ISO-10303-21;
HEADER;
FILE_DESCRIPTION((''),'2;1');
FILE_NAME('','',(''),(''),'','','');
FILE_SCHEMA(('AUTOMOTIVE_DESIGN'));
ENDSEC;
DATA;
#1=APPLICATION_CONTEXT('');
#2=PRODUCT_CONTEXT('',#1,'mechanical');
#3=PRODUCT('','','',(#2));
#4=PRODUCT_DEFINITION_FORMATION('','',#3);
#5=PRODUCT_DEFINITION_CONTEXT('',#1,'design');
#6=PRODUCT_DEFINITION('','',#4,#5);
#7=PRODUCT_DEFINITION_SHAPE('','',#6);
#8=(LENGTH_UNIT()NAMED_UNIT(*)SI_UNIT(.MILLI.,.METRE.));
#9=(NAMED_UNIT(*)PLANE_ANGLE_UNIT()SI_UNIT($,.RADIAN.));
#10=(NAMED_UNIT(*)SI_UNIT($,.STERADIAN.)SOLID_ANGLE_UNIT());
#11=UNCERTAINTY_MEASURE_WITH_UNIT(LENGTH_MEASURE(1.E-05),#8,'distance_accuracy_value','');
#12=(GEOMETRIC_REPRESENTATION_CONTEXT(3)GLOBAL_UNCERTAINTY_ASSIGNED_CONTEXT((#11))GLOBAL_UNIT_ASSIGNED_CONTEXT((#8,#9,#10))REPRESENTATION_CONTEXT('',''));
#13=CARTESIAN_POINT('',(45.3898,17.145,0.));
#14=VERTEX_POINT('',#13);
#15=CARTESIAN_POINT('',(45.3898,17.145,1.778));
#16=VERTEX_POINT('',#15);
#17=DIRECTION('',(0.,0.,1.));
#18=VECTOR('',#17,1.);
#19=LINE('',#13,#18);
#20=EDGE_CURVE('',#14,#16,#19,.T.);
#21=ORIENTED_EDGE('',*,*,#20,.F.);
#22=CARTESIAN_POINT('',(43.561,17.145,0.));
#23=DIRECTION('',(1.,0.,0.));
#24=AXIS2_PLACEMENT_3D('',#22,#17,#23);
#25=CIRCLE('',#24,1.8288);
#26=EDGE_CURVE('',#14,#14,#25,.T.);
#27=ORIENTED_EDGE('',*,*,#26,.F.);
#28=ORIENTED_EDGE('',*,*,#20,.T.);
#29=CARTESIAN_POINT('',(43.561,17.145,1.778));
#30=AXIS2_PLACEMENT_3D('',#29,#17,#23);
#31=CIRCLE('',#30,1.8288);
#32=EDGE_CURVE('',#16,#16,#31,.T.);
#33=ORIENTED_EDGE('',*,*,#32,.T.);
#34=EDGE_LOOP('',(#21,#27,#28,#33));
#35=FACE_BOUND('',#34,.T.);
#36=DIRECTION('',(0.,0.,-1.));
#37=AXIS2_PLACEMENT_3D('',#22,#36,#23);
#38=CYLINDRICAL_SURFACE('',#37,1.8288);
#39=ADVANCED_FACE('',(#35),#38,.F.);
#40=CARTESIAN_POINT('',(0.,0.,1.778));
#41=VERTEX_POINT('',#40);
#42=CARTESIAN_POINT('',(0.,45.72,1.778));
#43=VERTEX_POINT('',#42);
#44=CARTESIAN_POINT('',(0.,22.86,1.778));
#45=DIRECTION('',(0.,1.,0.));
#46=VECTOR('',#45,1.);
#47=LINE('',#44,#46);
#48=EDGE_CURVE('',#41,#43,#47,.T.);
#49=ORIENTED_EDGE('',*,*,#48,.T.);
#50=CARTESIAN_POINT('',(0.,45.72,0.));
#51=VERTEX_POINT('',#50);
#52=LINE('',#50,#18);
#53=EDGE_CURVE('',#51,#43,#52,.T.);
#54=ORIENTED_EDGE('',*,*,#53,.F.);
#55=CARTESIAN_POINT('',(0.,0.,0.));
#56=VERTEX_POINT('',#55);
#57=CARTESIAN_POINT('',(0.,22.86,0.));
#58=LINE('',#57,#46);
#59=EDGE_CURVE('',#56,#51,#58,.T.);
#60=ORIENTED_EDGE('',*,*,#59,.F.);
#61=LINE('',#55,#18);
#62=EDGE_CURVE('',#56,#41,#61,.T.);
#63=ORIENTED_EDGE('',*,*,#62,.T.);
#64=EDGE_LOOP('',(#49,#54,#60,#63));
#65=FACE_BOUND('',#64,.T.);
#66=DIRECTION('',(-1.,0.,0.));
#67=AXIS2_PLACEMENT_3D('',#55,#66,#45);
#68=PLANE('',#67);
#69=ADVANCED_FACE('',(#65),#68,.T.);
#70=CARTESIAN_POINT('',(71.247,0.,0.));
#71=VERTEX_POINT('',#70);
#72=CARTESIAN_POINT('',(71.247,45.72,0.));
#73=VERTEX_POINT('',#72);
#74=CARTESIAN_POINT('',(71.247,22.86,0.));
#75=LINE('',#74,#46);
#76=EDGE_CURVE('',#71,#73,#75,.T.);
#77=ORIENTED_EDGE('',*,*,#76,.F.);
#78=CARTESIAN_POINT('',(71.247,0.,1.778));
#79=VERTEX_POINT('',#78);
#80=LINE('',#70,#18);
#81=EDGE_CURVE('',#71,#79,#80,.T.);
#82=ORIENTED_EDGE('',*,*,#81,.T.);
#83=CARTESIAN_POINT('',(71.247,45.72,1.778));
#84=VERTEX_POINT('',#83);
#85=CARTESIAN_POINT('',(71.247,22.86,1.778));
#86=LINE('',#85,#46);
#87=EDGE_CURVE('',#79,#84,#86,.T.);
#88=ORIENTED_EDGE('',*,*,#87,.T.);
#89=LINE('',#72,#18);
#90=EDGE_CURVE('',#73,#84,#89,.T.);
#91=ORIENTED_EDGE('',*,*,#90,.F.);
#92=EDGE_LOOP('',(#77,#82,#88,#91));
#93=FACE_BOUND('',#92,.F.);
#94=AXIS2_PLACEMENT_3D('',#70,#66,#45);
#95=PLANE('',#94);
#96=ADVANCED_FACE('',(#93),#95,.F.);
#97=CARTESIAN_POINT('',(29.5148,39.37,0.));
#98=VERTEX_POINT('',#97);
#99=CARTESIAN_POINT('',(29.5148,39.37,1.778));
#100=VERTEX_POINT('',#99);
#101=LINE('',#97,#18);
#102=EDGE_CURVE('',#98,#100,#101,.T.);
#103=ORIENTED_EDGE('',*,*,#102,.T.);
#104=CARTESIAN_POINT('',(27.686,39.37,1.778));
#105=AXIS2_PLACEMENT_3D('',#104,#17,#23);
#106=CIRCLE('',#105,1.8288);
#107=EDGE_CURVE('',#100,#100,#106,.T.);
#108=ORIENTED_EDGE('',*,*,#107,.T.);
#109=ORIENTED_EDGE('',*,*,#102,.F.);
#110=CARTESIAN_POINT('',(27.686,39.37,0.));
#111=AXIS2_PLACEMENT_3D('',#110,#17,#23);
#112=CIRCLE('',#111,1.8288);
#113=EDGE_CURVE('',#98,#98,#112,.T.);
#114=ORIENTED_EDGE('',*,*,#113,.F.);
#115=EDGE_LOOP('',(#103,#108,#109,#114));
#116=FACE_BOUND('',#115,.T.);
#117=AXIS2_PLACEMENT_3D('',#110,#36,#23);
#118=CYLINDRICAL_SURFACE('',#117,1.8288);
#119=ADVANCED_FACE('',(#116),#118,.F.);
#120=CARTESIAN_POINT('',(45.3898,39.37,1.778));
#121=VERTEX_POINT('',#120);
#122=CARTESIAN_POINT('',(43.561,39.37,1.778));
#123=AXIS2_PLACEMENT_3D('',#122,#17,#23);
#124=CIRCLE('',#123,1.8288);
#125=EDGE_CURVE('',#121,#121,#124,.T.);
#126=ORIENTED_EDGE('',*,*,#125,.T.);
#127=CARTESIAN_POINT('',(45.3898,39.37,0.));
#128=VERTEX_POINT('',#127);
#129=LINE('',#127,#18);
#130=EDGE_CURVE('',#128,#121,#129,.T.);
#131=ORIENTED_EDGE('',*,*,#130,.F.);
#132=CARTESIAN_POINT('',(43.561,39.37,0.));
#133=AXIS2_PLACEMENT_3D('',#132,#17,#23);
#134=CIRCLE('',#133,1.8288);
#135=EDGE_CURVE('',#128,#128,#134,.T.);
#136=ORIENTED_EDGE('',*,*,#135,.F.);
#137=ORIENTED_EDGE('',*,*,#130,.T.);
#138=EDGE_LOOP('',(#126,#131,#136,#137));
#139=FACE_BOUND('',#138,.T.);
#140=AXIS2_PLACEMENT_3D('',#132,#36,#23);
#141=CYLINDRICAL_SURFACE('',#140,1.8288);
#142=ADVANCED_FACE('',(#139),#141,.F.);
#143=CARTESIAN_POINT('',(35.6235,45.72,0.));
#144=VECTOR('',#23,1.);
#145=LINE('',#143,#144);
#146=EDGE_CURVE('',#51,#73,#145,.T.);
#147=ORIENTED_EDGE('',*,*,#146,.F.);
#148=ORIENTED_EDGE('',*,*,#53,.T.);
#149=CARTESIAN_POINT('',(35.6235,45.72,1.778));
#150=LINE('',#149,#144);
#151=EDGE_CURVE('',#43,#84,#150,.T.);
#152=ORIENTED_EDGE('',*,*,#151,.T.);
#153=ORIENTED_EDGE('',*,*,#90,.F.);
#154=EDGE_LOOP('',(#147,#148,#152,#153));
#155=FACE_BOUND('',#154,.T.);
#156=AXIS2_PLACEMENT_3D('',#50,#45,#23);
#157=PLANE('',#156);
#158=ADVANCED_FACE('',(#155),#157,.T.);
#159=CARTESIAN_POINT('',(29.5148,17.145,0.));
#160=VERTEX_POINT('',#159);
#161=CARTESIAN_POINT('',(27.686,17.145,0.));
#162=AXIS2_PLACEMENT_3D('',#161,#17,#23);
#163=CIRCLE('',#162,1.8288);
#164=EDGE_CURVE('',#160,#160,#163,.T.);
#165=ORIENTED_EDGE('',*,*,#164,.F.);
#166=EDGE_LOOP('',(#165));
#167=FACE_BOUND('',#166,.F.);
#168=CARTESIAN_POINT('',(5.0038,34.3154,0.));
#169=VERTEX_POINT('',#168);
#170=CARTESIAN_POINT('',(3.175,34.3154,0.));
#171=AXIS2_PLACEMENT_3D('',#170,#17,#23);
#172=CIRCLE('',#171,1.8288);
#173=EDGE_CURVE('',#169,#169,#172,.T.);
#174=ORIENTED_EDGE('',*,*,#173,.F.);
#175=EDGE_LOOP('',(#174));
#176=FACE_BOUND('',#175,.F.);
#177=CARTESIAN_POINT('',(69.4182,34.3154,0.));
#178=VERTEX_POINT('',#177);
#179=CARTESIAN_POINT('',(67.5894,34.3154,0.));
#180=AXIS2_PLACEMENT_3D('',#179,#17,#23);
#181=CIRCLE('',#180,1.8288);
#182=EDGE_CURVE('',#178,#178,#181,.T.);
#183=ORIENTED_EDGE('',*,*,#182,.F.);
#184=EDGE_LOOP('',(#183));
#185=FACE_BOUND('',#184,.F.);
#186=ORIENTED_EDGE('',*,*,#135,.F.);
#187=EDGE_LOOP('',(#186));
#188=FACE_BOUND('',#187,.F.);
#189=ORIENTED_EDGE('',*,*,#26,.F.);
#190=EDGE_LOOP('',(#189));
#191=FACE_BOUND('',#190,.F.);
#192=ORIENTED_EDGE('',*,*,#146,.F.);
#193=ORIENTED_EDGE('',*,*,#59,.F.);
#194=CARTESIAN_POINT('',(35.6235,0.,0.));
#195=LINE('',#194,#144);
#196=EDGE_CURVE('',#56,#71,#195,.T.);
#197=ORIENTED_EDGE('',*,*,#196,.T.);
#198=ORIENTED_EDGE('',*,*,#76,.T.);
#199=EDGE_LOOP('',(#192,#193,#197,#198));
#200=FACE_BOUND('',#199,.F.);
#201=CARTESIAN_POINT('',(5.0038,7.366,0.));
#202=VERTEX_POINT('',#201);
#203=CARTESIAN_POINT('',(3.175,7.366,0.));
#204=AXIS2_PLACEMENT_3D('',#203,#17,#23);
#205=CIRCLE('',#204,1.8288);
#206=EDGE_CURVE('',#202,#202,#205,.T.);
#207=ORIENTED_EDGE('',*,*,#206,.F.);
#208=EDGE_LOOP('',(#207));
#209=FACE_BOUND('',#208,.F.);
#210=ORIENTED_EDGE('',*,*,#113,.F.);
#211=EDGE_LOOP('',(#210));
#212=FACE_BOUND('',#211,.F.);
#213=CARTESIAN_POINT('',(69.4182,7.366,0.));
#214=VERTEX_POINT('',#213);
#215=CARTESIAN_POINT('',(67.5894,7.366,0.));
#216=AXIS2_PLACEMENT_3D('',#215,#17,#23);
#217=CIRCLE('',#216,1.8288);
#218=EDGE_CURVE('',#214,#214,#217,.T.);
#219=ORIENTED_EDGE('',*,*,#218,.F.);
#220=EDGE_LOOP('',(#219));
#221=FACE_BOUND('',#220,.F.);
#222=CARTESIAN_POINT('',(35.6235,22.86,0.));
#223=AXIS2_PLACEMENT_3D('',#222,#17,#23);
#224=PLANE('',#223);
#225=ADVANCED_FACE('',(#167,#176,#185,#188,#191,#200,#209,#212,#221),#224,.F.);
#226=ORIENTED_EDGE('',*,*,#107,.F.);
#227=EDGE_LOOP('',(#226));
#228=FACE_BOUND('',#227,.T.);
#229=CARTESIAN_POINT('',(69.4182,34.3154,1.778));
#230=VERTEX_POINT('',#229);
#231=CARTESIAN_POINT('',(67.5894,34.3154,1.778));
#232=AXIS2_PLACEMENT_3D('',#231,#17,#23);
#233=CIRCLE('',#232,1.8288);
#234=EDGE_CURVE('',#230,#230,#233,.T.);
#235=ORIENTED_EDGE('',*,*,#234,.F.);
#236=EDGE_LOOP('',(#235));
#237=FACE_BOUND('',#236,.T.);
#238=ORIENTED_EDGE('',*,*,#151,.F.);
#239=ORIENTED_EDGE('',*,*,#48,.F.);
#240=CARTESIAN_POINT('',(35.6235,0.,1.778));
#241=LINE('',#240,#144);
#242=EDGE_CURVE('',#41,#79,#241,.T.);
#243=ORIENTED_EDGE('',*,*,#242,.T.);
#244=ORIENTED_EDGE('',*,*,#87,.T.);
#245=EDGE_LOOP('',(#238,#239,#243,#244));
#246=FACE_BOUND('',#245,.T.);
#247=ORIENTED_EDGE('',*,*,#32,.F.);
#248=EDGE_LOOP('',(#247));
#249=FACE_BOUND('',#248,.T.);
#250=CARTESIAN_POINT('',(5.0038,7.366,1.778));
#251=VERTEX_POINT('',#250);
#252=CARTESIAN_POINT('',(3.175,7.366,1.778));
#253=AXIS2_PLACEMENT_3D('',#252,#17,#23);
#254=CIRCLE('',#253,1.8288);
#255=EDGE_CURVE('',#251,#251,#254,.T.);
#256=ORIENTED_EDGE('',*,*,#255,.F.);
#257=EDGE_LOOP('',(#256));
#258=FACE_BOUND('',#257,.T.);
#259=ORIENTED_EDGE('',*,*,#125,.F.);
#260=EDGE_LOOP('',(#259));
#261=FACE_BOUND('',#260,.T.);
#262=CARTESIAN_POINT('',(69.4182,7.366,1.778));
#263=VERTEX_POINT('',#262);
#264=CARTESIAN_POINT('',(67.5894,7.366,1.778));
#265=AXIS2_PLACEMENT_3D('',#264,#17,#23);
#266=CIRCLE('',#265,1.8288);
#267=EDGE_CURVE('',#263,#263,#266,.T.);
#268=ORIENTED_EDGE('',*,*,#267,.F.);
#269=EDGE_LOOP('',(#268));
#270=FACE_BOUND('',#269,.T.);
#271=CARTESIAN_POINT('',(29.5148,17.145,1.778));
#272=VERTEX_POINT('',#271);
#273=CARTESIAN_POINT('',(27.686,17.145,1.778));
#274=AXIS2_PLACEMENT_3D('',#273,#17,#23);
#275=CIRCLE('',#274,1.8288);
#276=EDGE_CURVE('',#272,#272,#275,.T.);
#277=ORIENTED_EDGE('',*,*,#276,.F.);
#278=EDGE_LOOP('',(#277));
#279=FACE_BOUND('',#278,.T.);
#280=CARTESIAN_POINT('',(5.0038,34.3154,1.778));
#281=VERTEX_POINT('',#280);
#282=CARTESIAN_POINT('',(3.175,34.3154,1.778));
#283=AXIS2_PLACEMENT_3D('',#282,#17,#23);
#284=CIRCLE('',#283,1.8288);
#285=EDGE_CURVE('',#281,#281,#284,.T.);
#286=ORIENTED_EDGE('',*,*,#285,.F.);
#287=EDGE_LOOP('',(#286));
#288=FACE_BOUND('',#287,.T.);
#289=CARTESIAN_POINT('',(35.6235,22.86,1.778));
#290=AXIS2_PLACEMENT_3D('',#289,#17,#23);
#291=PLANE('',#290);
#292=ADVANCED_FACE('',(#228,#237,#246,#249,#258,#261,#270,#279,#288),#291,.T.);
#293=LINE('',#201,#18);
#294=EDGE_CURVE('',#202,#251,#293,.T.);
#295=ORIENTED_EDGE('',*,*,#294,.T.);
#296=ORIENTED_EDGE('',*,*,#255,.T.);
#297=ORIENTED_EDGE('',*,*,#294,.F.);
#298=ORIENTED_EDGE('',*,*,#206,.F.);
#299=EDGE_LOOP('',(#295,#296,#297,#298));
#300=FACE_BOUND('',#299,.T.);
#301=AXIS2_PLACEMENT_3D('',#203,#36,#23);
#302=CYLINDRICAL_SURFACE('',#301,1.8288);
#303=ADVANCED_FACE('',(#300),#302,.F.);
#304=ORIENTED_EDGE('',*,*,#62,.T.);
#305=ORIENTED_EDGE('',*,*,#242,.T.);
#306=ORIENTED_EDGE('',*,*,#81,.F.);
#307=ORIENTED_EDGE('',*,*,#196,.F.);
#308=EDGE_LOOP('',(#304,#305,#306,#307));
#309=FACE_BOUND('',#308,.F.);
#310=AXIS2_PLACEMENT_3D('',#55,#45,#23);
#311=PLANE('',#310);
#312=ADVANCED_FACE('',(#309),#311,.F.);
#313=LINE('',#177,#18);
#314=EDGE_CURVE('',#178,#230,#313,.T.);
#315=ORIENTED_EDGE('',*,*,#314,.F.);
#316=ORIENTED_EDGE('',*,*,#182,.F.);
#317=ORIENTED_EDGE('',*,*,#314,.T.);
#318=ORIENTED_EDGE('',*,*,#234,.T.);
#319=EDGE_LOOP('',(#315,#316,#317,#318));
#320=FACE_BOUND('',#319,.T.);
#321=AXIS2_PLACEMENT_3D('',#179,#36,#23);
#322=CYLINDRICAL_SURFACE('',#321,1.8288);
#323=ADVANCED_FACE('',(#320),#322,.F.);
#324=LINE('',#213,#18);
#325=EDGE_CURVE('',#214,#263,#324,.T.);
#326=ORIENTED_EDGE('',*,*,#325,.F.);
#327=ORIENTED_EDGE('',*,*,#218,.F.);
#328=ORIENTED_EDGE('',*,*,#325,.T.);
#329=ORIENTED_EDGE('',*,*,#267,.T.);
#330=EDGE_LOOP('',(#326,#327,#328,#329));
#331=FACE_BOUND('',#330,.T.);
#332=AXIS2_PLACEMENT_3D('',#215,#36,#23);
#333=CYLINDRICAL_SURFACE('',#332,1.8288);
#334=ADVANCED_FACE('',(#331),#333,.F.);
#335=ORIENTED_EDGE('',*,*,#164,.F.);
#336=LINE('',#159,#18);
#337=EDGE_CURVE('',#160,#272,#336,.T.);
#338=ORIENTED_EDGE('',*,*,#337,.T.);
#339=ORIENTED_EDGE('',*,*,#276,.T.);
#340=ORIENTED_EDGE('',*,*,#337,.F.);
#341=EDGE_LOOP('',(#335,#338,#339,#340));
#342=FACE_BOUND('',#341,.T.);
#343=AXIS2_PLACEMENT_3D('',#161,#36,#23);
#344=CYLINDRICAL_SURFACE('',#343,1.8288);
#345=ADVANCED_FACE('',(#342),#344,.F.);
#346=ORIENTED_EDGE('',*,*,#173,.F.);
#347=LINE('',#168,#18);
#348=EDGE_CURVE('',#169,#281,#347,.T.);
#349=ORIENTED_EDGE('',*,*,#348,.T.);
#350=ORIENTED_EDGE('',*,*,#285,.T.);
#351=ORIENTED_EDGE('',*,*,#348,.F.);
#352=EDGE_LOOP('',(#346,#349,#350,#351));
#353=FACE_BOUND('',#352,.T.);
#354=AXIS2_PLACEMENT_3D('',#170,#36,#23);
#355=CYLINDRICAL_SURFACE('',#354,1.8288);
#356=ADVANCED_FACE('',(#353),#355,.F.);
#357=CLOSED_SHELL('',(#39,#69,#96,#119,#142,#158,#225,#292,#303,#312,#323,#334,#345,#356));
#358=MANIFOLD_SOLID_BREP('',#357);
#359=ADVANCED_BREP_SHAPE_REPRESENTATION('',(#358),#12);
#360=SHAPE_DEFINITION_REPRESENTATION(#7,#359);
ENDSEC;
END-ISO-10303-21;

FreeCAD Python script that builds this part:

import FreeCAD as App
import Part
import Sketcher
from FreeCAD import Vector
Q = App.Units.Quantity


def add_polygon(sketch, points):
    """Adds a closed chain of lines whose ends are joined by coincident constraints."""
    first, n = sketch.GeometryCount, len(points)
    for a, b in zip(points, points[1:] + points[:1]):
        sketch.addGeometry(Part.LineSegment(App.Vector(*a, 0), App.Vector(*b, 0)), False)
    for i in range(n):
        sketch.addConstraint(Sketcher.Constraint("Coincident", first + i, 2, first + (i + 1) % n, 1))

doc = App.newDocument("Part")
body = doc.addObject("PartDesign::Body", "Body")

# Sketch on XY plane
sketch1 = body.newObject("Sketcher::SketchObject", "Sketch")
sketch1.AttachmentSupport = (doc.getObject("XY_Plane"), [""])
sketch1.MapMode = "FlatFace"
add_polygon(sketch1, [(0, 45.7), (0, 0), (71.2, 0), (71.2, 45.7)])  # lines 0-3
sketch1.addGeometry(Part.Circle(Vector(3.2, 7.4, 0), Vector(0, 0, 1), 1.8), False)  # 4
sketch1.addGeometry(Part.Circle(Vector(27.7, 17.1, 0), Vector(0, 0, 1), 1.8), False)  # 5
sketch1.addGeometry(Part.Circle(Vector(67.6, 7.4, 0), Vector(0, 0, 1), 1.8), False)  # 6
sketch1.addGeometry(Part.Circle(Vector(43.6, 17.1, 0), Vector(0, 0, 1), 1.8), False)  # 7
sketch1.addGeometry(Part.Circle(Vector(3.2, 34.3, 0), Vector(0, 0, 1), 1.8), False)  # 8
sketch1.addGeometry(Part.Circle(Vector(27.7, 39.4, 0), Vector(0, 0, 1), 1.8), False)  # 9
sketch1.addGeometry(Part.Circle(Vector(43.6, 39.4, 0), Vector(0, 0, 1), 1.8), False)  # 10
sketch1.addGeometry(Part.Circle(Vector(67.6, 34.3, 0), Vector(0, 0, 1), 1.8), False)  # 11
sketch1.addConstraint([
    Sketcher.Constraint("Vertical", 0),
    Sketcher.Constraint("Horizontal", 1),
    Sketcher.Constraint("Vertical", 2),
    Sketcher.Constraint("Horizontal", 3),
    Sketcher.Constraint("Coincident", 0, 2, -1, 1),
    Sketcher.Constraint("Equal", 4, 5),
    Sketcher.Constraint("Equal", 5, 6),
    Sketcher.Constraint("Equal", 6, 7),
    Sketcher.Constraint("Equal", 7, 8),
    Sketcher.Constraint("Equal", 8, 9),
    Sketcher.Constraint("Equal", 9, 10),
    Sketcher.Constraint("Equal", 10, 11),
    Sketcher.Constraint("Horizontal", 4, 3, 6, 3),
    Sketcher.Constraint("Horizontal", 5, 3, 7, 3),
    Sketcher.Constraint("Horizontal", 9, 3, 10, 3),
    Sketcher.Constraint("Horizontal", 8, 3, 11, 3),
    Sketcher.Constraint("Vertical", 4, 3, 8, 3),
    Sketcher.Constraint("Vertical", 5, 3, 9, 3),
    Sketcher.Constraint("Vertical", 7, 3, 10, 3),
    Sketcher.Constraint("Vertical", 6, 3, 11, 3),
    Sketcher.Constraint("Diameter", 4, Q("0.144 in")),
    Sketcher.Constraint("DistanceY", 0, 2, 0, 1, Q("1.8 in")),
    Sketcher.Constraint("DistanceX", 1, 1, 1, 2, Q("2.805 in")),
    Sketcher.Constraint("DistanceY", -1, 1, 4, 3, Q("0.29 in")),
    Sketcher.Constraint("DistanceX", -1, 1, 5, 3, Q("1.09 in")),
    Sketcher.Constraint("DistanceY", -1, 1, 9, 3, Q("1.55 in")),
    Sketcher.Constraint("DistanceX", 4, 3, 7, 3, Q("1.59 in")),
    Sketcher.Constraint("DistanceX", 7, 3, 1, 2, Q("1.09 in")),
    Sketcher.Constraint("DistanceY", -1, 1, 5, 3, Q("0.675 in")),
    Sketcher.Constraint("DistanceX", -1, 1, 6, 3, Q("2.661 in")),
    Sketcher.Constraint("DistanceY", -1, 1, 8, 3, Q("1.351 in")),
])
pad1 = body.newObject("PartDesign::Pad", "Pad")
pad1.Profile = sketch1
pad1.Length = Q("0.07 in")

doc.recompute()
